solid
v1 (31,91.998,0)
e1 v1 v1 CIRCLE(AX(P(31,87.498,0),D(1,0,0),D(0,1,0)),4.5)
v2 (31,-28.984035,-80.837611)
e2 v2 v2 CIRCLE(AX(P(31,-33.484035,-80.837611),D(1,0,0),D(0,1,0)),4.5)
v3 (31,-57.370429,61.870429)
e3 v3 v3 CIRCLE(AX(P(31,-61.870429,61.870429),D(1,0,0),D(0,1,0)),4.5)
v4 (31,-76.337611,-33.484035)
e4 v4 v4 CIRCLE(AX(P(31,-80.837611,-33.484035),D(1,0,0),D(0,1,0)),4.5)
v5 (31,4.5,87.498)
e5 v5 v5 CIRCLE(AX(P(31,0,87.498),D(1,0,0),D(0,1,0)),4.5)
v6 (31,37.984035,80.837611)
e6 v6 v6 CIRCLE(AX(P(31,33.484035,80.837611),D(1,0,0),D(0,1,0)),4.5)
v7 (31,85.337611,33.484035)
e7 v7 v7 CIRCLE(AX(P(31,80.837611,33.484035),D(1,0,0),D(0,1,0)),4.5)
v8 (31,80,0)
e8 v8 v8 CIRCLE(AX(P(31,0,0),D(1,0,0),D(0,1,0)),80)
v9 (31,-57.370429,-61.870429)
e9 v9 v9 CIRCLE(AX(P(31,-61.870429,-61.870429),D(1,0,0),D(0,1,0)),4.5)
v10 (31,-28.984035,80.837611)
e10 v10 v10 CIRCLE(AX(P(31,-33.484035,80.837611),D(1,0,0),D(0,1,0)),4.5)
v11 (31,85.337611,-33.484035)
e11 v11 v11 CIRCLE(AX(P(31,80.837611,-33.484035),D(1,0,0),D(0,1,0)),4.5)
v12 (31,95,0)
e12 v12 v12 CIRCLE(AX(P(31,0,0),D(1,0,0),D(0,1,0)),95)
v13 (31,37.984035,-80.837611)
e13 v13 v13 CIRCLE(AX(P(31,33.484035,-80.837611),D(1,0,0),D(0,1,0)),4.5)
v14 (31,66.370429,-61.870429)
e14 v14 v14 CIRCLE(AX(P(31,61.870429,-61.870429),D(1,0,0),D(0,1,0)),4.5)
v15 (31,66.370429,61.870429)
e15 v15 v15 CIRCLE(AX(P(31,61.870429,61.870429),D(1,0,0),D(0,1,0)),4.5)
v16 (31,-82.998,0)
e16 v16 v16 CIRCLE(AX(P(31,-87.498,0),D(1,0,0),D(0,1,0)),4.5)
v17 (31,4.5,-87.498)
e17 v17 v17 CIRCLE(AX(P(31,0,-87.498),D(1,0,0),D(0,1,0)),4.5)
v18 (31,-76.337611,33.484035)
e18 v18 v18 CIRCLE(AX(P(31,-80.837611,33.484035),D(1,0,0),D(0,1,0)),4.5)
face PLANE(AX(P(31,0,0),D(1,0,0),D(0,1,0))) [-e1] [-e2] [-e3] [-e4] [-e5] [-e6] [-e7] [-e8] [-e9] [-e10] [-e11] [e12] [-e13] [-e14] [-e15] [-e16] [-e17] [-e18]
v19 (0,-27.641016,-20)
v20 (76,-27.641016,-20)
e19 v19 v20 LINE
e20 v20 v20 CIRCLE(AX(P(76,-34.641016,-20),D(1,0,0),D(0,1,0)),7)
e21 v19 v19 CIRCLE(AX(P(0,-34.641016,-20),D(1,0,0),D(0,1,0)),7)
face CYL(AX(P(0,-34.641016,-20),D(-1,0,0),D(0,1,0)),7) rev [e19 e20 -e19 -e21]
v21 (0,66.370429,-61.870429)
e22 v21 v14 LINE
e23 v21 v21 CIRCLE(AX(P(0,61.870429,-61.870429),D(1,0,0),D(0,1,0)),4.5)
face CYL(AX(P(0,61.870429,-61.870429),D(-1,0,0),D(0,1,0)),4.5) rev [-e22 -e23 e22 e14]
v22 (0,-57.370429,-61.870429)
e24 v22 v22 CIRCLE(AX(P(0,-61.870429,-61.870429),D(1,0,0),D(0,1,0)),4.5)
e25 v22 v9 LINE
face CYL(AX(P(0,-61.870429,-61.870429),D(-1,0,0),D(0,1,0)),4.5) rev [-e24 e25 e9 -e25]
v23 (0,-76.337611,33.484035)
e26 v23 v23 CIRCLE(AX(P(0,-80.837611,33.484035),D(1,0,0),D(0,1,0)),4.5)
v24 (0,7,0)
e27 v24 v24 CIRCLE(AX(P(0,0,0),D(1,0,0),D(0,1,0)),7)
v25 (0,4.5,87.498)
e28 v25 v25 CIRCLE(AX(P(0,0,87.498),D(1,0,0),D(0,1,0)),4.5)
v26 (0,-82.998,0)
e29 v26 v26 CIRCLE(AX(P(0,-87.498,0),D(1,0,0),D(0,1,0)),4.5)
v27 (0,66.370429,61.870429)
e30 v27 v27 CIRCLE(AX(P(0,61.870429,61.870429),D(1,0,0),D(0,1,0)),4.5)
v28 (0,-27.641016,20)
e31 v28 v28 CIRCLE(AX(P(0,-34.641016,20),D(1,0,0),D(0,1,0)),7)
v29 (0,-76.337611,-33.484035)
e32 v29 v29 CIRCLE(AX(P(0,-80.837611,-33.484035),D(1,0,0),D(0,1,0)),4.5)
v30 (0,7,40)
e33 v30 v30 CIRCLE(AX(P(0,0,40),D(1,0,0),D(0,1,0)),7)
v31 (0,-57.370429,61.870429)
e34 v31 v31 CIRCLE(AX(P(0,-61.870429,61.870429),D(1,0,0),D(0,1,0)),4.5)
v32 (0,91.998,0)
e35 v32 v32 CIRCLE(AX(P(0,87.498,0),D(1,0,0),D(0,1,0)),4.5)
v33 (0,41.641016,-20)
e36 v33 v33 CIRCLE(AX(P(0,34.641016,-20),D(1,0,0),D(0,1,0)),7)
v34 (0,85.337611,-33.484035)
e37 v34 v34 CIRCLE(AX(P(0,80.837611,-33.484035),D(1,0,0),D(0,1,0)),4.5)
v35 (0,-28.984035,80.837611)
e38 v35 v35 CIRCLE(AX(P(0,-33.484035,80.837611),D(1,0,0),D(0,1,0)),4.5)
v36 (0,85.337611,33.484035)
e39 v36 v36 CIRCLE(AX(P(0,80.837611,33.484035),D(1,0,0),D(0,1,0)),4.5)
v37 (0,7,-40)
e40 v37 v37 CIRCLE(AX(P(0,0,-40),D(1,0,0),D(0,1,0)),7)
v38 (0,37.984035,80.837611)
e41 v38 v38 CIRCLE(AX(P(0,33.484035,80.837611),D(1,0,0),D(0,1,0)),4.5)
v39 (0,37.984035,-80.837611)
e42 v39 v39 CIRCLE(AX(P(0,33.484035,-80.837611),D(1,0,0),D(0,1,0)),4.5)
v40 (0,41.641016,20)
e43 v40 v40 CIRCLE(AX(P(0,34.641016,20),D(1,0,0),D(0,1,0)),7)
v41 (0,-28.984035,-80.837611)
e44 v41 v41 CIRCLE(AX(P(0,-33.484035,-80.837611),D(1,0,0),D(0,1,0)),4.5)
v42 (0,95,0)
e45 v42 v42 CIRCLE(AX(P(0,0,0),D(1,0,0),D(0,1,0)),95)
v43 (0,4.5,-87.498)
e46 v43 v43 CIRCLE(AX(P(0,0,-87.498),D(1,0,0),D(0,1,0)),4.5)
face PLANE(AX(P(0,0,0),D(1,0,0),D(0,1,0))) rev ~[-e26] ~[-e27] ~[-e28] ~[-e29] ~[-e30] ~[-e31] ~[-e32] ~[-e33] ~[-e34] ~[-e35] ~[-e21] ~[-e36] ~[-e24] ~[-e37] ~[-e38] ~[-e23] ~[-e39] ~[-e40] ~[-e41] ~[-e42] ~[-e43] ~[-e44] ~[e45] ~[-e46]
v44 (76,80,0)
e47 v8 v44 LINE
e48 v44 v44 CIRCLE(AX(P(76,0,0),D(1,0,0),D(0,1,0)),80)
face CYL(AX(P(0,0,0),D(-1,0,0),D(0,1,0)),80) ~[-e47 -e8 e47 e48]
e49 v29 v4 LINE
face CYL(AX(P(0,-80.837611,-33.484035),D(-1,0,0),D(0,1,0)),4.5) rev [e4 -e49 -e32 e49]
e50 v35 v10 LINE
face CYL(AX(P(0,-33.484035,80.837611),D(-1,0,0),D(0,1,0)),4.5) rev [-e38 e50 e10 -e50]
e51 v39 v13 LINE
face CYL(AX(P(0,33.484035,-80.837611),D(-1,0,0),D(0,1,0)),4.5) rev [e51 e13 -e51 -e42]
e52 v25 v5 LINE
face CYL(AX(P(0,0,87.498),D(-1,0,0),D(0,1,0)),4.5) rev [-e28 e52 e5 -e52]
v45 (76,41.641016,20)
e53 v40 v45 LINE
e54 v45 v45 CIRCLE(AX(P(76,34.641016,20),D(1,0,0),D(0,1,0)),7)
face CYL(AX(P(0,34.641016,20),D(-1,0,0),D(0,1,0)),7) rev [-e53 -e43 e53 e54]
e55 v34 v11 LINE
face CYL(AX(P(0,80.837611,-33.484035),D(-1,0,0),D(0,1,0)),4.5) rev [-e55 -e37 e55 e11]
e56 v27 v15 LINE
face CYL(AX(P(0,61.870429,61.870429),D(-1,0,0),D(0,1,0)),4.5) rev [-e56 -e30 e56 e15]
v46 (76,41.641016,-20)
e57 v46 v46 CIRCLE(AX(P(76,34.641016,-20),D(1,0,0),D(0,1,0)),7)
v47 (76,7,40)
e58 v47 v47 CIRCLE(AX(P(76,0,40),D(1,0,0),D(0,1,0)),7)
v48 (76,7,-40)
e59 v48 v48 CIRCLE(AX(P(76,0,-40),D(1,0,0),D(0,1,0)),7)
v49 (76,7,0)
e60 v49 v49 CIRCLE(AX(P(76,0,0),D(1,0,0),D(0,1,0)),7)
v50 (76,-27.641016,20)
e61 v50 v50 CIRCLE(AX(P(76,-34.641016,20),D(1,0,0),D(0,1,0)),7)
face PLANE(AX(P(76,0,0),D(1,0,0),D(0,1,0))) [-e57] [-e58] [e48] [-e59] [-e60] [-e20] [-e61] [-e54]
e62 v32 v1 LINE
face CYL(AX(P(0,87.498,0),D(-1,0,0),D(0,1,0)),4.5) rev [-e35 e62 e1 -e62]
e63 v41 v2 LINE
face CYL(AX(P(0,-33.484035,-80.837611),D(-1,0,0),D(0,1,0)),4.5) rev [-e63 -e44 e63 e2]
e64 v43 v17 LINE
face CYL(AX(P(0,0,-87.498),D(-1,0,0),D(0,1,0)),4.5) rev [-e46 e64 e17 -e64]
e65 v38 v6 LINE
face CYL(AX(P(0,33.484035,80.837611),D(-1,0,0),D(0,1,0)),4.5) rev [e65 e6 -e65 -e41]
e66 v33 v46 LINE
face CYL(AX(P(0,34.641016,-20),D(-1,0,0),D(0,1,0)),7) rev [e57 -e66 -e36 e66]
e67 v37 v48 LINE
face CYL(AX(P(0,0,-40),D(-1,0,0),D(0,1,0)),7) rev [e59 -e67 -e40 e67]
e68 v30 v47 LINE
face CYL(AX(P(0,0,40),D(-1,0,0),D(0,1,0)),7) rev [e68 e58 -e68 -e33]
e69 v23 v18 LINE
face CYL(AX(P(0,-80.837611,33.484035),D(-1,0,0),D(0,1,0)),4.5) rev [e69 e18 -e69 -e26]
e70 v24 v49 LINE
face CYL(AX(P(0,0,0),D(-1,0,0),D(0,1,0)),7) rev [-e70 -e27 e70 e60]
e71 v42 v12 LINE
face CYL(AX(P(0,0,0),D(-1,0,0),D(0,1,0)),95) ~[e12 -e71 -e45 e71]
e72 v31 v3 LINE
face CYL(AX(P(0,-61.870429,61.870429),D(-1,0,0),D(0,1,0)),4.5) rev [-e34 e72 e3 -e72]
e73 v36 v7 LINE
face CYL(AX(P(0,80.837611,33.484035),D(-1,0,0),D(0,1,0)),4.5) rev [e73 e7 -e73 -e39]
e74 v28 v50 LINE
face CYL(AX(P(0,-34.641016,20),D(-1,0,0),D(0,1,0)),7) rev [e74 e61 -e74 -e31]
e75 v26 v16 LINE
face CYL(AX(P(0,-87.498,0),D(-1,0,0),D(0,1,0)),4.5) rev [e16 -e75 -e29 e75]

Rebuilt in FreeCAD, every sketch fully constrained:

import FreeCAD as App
import Part
import Sketcher

doc = App.newDocument("Part")
body = doc.addObject("PartDesign::Body", "Body")

# Sketch on YZ plane
sketch1 = body.newObject("Sketcher::SketchObject", "Sketch")
sketch1.AttachmentSupport = (doc.getObject("YZ_Plane"), [""])
sketch1.MapMode = "FlatFace"
sketch1.addGeometry(Part.Circle(App.Vector(0, 0, 0), App.Vector(0, 0, 1), 80), False)
sketch1.addGeometry(Part.Circle(App.Vector(-34.641016, -20, 0), App.Vector(0, 0, 1), 7), False)
sketch1.addGeometry(Part.Circle(App.Vector(0, -40, 0), App.Vector(0, 0, 1), 7), False)
sketch1.addGeometry(Part.Circle(App.Vector(34.641016, -20, 0), App.Vector(0, 0, 1), 7), False)
sketch1.addGeometry(Part.Circle(App.Vector(-34.641016, 20, 0), App.Vector(0, 0, 1), 7), False)
sketch1.addGeometry(Part.Circle(App.Vector(0, 0, 0), App.Vector(0, 0, 1), 7), False)
sketch1.addGeometry(Part.Circle(App.Vector(34.641016, 20, 0), App.Vector(0, 0, 1), 7), False)
sketch1.addGeometry(Part.Circle(App.Vector(0, 40, 0), App.Vector(0, 0, 1), 7), False)
sketch1.addConstraint(Sketcher.Constraint("Coincident", 0, 3, -1, 1))
sketch1.addConstraint(Sketcher.Constraint("Coincident", 5, 3, -1, 1))
sketch1.addConstraint(Sketcher.Constraint("Equal", 1, 2))
sketch1.addConstraint(Sketcher.Constraint("Equal", 2, 3))
sketch1.addConstraint(Sketcher.Constraint("Equal", 3, 4))
sketch1.addConstraint(Sketcher.Constraint("Equal", 4, 5))
sketch1.addConstraint(Sketcher.Constraint("Equal", 5, 6))
sketch1.addConstraint(Sketcher.Constraint("Equal", 6, 7))
sketch1.addConstraint(Sketcher.Constraint("Symmetric", 3, 3, 4, 3, -1, 1))
sketch1.addConstraint(Sketcher.Constraint("Symmetric", 1, 3, 6, 3, -1, 1))
sketch1.addConstraint(Sketcher.Constraint("Symmetric", 2, 3, 7, 3, -1, 1))
sketch1.addConstraint(Sketcher.Constraint("Symmetric", 1, 3, 3, 3, -2))
sketch1.addConstraint(Sketcher.Constraint("PointOnObject", 2, 3, -2))
sketch1.addConstraint(Sketcher.Constraint("Diameter", 0, 160.0))
sketch1.addConstraint(Sketcher.Constraint("Diameter", 1, 14.0))
sketch1.addConstraint(Sketcher.Constraint("DistanceY", 1, 3, -1, 1, 20.0))
sketch1.addConstraint(Sketcher.Constraint("DistanceY", 2, 3, -1, 1, 40.0))
sketch1.addConstraint(Sketcher.Constraint("DistanceX", 1, 3, 3, 3, 69.282032))
pad1 = body.newObject("PartDesign::Pad", "Pad")
pad1.Profile = sketch1
pad1.Length = 76

# Sketch on YZ plane
sketch2 = body.newObject("Sketcher::SketchObject", "Sketch001")
sketch2.AttachmentSupport = (doc.getObject("YZ_Plane"), [""])
sketch2.MapMode = "FlatFace"
sketch2.addGeometry(Part.Circle(App.Vector(0, 0, 0), App.Vector(0, 0, 1), 95), False)
sketch2.addGeometry(Part.Circle(App.Vector(-61.870429, -61.870429, 0), App.Vector(0, 0, 1), 4.5), False)
sketch2.addGeometry(Part.Circle(App.Vector(-33.484035, -80.837611, 0), App.Vector(0, 0, 1), 4.5), False)
sketch2.addGeometry(Part.Circle(App.Vector(-80.837611, -33.484035, 0), App.Vector(0, 0, 1), 4.5), False)
sketch2.addGeometry(Part.Circle(App.Vector(0, -87.498, 0), App.Vector(0, 0, 1), 4.5), False)
sketch2.addGeometry(Part.Circle(App.Vector(33.484035, -80.837611, 0), App.Vector(0, 0, 1), 4.5), False)
sketch2.addGeometry(Part.Circle(App.Vector(61.870429, -61.870429, 0), App.Vector(0, 0, 1), 4.5), False)
sketch2.addGeometry(Part.Circle(App.Vector(80.837611, -33.484035, 0), App.Vector(0, 0, 1), 4.5), False)
sketch2.addGeometry(Part.Circle(App.Vector(-87.498, 0, 0), App.Vector(0, 0, 1), 4.5), False)
sketch2.addGeometry(Part.Circle(App.Vector(-80.837611, 33.484035, 0), App.Vector(0, 0, 1), 4.5), False)
sketch2.addGeometry(Part.Circle(App.Vector(-61.870429, 61.870429, 0), App.Vector(0, 0, 1), 4.5), False)
sketch2.addGeometry(Part.Circle(App.Vector(-33.484035, 80.837611, 0), App.Vector(0, 0, 1), 4.5), False)
sketch2.addGeometry(Part.Circle(App.Vector(0, 0, 0), App.Vector(0, 0, 1), 80), False)
sketch2.addGeometry(Part.Circle(App.Vector(87.498, 0, 0), App.Vector(0, 0, 1), 4.5), False)
sketch2.addGeometry(Part.Circle(App.Vector(80.837611, 33.484035, 0), App.Vector(0, 0, 1), 4.5), False)
sketch2.addGeometry(Part.Circle(App.Vector(0, 87.498, 0), App.Vector(0, 0, 1), 4.5), False)
sketch2.addGeometry(Part.Circle(App.Vector(33.484035, 80.837611, 0), App.Vector(0, 0, 1), 4.5), False)
sketch2.addGeometry(Part.Circle(App.Vector(61.870429, 61.870429, 0), App.Vector(0, 0, 1), 4.5), False)
sketch2.addConstraint(Sketcher.Constraint("Coincident", 0, 3, -1, 1))
sketch2.addConstraint(Sketcher.Constraint("Coincident", 12, 3, -1, 1))
sketch2.addConstraint(Sketcher.Constraint("Equal", 1, 2))
sketch2.addConstraint(Sketcher.Constraint("Equal", 2, 3))
sketch2.addConstraint(Sketcher.Constraint("Equal", 3, 4))
sketch2.addConstraint(Sketcher.Constraint("Equal", 4, 5))
sketch2.addConstraint(Sketcher.Constraint("Equal", 5, 6))
sketch2.addConstraint(Sketcher.Constraint("Equal", 6, 7))
sketch2.addConstraint(Sketcher.Constraint("Equal", 7, 8))
sketch2.addConstraint(Sketcher.Constraint("Equal", 8, 9))
sketch2.addConstraint(Sketcher.Constraint("Equal", 9, 10))
sketch2.addConstraint(Sketcher.Constraint("Equal", 10, 11))
sketch2.addConstraint(Sketcher.Constraint("Equal", 11, 13))
sketch2.addConstraint(Sketcher.Constraint("Equal", 13, 14))
sketch2.addConstraint(Sketcher.Constraint("Equal", 14, 15))
sketch2.addConstraint(Sketcher.Constraint("Equal", 15, 16))
sketch2.addConstraint(Sketcher.Constraint("Equal", 16, 17))
sketch2.addConstraint(Sketcher.Constraint("Symmetric", 7, 3, 9, 3, -1, 1))
sketch2.addConstraint(Sketcher.Constraint("Symmetric", 6, 3, 10, 3, -1, 1))
sketch2.addConstraint(Sketcher.Constraint("Symmetric", 5, 3, 11, 3, -1, 1))
sketch2.addConstraint(Sketcher.Constraint("Symmetric", 8, 3, 13, 3, -1, 1))
sketch2.addConstraint(Sketcher.Constraint("Symmetric", 3, 3, 14, 3, -1, 1))
sketch2.addConstraint(Sketcher.Constraint("Symmetric", 4, 3, 15, 3, -1, 1))
sketch2.addConstraint(Sketcher.Constraint("Symmetric", 2, 3, 16, 3, -1, 1))
sketch2.addConstraint(Sketcher.Constraint("Symmetric", 1, 3, 17, 3, -1, 1))
sketch2.addConstraint(Sketcher.Constraint("Symmetric", 2, 3, 5, 3, -2))
sketch2.addConstraint(Sketcher.Constraint("Symmetric", 1, 3, 6, 3, -2))
sketch2.addConstraint(Sketcher.Constraint("Symmetric", 3, 3, 7, 3, -2))
sketch2.addConstraint(Sketcher.Constraint("PointOnObject", 4, 3, -2))
sketch2.addConstraint(Sketcher.Constraint("PointOnObject", 8, 3, -1))
sketch2.addConstraint(Sketcher.Constraint("Diameter", 0, 190.0))
sketch2.addConstraint(Sketcher.Constraint("Diameter", 1, 9.0))
sketch2.addConstraint(Sketcher.Constraint("Diameter", 12, 160.0))
sketch2.addConstraint(Sketcher.Constraint("DistanceY", 4, 3, -1, 1, 87.498))
sketch2.addConstraint(Sketcher.Constraint("DistanceX", 8, 3, -1, 1, 87.498))
sketch2.addConstraint(Sketcher.Constraint("DistanceX", 1, 3, -1, 1, 61.870429))
sketch2.addConstraint(Sketcher.Constraint("DistanceY", 1, 3, -1, 1, 61.870429))
sketch2.addConstraint(Sketcher.Constraint("DistanceY", 2, 3, -1, 1, 80.837611))
sketch2.addConstraint(Sketcher.Constraint("DistanceX", 3, 3, -1, 1, 80.837611))
sketch2.addConstraint(Sketcher.Constraint("DistanceX", 2, 3, 5, 3, 66.96807))
sketch2.addConstraint(Sketcher.Constraint("DistanceY", 3, 3, 9, 3, 66.96807))
pad2 = body.newObject("PartDesign::Pad", "Pad001")
pad2.Profile = sketch2
pad2.Length = 31

doc.recompute()
